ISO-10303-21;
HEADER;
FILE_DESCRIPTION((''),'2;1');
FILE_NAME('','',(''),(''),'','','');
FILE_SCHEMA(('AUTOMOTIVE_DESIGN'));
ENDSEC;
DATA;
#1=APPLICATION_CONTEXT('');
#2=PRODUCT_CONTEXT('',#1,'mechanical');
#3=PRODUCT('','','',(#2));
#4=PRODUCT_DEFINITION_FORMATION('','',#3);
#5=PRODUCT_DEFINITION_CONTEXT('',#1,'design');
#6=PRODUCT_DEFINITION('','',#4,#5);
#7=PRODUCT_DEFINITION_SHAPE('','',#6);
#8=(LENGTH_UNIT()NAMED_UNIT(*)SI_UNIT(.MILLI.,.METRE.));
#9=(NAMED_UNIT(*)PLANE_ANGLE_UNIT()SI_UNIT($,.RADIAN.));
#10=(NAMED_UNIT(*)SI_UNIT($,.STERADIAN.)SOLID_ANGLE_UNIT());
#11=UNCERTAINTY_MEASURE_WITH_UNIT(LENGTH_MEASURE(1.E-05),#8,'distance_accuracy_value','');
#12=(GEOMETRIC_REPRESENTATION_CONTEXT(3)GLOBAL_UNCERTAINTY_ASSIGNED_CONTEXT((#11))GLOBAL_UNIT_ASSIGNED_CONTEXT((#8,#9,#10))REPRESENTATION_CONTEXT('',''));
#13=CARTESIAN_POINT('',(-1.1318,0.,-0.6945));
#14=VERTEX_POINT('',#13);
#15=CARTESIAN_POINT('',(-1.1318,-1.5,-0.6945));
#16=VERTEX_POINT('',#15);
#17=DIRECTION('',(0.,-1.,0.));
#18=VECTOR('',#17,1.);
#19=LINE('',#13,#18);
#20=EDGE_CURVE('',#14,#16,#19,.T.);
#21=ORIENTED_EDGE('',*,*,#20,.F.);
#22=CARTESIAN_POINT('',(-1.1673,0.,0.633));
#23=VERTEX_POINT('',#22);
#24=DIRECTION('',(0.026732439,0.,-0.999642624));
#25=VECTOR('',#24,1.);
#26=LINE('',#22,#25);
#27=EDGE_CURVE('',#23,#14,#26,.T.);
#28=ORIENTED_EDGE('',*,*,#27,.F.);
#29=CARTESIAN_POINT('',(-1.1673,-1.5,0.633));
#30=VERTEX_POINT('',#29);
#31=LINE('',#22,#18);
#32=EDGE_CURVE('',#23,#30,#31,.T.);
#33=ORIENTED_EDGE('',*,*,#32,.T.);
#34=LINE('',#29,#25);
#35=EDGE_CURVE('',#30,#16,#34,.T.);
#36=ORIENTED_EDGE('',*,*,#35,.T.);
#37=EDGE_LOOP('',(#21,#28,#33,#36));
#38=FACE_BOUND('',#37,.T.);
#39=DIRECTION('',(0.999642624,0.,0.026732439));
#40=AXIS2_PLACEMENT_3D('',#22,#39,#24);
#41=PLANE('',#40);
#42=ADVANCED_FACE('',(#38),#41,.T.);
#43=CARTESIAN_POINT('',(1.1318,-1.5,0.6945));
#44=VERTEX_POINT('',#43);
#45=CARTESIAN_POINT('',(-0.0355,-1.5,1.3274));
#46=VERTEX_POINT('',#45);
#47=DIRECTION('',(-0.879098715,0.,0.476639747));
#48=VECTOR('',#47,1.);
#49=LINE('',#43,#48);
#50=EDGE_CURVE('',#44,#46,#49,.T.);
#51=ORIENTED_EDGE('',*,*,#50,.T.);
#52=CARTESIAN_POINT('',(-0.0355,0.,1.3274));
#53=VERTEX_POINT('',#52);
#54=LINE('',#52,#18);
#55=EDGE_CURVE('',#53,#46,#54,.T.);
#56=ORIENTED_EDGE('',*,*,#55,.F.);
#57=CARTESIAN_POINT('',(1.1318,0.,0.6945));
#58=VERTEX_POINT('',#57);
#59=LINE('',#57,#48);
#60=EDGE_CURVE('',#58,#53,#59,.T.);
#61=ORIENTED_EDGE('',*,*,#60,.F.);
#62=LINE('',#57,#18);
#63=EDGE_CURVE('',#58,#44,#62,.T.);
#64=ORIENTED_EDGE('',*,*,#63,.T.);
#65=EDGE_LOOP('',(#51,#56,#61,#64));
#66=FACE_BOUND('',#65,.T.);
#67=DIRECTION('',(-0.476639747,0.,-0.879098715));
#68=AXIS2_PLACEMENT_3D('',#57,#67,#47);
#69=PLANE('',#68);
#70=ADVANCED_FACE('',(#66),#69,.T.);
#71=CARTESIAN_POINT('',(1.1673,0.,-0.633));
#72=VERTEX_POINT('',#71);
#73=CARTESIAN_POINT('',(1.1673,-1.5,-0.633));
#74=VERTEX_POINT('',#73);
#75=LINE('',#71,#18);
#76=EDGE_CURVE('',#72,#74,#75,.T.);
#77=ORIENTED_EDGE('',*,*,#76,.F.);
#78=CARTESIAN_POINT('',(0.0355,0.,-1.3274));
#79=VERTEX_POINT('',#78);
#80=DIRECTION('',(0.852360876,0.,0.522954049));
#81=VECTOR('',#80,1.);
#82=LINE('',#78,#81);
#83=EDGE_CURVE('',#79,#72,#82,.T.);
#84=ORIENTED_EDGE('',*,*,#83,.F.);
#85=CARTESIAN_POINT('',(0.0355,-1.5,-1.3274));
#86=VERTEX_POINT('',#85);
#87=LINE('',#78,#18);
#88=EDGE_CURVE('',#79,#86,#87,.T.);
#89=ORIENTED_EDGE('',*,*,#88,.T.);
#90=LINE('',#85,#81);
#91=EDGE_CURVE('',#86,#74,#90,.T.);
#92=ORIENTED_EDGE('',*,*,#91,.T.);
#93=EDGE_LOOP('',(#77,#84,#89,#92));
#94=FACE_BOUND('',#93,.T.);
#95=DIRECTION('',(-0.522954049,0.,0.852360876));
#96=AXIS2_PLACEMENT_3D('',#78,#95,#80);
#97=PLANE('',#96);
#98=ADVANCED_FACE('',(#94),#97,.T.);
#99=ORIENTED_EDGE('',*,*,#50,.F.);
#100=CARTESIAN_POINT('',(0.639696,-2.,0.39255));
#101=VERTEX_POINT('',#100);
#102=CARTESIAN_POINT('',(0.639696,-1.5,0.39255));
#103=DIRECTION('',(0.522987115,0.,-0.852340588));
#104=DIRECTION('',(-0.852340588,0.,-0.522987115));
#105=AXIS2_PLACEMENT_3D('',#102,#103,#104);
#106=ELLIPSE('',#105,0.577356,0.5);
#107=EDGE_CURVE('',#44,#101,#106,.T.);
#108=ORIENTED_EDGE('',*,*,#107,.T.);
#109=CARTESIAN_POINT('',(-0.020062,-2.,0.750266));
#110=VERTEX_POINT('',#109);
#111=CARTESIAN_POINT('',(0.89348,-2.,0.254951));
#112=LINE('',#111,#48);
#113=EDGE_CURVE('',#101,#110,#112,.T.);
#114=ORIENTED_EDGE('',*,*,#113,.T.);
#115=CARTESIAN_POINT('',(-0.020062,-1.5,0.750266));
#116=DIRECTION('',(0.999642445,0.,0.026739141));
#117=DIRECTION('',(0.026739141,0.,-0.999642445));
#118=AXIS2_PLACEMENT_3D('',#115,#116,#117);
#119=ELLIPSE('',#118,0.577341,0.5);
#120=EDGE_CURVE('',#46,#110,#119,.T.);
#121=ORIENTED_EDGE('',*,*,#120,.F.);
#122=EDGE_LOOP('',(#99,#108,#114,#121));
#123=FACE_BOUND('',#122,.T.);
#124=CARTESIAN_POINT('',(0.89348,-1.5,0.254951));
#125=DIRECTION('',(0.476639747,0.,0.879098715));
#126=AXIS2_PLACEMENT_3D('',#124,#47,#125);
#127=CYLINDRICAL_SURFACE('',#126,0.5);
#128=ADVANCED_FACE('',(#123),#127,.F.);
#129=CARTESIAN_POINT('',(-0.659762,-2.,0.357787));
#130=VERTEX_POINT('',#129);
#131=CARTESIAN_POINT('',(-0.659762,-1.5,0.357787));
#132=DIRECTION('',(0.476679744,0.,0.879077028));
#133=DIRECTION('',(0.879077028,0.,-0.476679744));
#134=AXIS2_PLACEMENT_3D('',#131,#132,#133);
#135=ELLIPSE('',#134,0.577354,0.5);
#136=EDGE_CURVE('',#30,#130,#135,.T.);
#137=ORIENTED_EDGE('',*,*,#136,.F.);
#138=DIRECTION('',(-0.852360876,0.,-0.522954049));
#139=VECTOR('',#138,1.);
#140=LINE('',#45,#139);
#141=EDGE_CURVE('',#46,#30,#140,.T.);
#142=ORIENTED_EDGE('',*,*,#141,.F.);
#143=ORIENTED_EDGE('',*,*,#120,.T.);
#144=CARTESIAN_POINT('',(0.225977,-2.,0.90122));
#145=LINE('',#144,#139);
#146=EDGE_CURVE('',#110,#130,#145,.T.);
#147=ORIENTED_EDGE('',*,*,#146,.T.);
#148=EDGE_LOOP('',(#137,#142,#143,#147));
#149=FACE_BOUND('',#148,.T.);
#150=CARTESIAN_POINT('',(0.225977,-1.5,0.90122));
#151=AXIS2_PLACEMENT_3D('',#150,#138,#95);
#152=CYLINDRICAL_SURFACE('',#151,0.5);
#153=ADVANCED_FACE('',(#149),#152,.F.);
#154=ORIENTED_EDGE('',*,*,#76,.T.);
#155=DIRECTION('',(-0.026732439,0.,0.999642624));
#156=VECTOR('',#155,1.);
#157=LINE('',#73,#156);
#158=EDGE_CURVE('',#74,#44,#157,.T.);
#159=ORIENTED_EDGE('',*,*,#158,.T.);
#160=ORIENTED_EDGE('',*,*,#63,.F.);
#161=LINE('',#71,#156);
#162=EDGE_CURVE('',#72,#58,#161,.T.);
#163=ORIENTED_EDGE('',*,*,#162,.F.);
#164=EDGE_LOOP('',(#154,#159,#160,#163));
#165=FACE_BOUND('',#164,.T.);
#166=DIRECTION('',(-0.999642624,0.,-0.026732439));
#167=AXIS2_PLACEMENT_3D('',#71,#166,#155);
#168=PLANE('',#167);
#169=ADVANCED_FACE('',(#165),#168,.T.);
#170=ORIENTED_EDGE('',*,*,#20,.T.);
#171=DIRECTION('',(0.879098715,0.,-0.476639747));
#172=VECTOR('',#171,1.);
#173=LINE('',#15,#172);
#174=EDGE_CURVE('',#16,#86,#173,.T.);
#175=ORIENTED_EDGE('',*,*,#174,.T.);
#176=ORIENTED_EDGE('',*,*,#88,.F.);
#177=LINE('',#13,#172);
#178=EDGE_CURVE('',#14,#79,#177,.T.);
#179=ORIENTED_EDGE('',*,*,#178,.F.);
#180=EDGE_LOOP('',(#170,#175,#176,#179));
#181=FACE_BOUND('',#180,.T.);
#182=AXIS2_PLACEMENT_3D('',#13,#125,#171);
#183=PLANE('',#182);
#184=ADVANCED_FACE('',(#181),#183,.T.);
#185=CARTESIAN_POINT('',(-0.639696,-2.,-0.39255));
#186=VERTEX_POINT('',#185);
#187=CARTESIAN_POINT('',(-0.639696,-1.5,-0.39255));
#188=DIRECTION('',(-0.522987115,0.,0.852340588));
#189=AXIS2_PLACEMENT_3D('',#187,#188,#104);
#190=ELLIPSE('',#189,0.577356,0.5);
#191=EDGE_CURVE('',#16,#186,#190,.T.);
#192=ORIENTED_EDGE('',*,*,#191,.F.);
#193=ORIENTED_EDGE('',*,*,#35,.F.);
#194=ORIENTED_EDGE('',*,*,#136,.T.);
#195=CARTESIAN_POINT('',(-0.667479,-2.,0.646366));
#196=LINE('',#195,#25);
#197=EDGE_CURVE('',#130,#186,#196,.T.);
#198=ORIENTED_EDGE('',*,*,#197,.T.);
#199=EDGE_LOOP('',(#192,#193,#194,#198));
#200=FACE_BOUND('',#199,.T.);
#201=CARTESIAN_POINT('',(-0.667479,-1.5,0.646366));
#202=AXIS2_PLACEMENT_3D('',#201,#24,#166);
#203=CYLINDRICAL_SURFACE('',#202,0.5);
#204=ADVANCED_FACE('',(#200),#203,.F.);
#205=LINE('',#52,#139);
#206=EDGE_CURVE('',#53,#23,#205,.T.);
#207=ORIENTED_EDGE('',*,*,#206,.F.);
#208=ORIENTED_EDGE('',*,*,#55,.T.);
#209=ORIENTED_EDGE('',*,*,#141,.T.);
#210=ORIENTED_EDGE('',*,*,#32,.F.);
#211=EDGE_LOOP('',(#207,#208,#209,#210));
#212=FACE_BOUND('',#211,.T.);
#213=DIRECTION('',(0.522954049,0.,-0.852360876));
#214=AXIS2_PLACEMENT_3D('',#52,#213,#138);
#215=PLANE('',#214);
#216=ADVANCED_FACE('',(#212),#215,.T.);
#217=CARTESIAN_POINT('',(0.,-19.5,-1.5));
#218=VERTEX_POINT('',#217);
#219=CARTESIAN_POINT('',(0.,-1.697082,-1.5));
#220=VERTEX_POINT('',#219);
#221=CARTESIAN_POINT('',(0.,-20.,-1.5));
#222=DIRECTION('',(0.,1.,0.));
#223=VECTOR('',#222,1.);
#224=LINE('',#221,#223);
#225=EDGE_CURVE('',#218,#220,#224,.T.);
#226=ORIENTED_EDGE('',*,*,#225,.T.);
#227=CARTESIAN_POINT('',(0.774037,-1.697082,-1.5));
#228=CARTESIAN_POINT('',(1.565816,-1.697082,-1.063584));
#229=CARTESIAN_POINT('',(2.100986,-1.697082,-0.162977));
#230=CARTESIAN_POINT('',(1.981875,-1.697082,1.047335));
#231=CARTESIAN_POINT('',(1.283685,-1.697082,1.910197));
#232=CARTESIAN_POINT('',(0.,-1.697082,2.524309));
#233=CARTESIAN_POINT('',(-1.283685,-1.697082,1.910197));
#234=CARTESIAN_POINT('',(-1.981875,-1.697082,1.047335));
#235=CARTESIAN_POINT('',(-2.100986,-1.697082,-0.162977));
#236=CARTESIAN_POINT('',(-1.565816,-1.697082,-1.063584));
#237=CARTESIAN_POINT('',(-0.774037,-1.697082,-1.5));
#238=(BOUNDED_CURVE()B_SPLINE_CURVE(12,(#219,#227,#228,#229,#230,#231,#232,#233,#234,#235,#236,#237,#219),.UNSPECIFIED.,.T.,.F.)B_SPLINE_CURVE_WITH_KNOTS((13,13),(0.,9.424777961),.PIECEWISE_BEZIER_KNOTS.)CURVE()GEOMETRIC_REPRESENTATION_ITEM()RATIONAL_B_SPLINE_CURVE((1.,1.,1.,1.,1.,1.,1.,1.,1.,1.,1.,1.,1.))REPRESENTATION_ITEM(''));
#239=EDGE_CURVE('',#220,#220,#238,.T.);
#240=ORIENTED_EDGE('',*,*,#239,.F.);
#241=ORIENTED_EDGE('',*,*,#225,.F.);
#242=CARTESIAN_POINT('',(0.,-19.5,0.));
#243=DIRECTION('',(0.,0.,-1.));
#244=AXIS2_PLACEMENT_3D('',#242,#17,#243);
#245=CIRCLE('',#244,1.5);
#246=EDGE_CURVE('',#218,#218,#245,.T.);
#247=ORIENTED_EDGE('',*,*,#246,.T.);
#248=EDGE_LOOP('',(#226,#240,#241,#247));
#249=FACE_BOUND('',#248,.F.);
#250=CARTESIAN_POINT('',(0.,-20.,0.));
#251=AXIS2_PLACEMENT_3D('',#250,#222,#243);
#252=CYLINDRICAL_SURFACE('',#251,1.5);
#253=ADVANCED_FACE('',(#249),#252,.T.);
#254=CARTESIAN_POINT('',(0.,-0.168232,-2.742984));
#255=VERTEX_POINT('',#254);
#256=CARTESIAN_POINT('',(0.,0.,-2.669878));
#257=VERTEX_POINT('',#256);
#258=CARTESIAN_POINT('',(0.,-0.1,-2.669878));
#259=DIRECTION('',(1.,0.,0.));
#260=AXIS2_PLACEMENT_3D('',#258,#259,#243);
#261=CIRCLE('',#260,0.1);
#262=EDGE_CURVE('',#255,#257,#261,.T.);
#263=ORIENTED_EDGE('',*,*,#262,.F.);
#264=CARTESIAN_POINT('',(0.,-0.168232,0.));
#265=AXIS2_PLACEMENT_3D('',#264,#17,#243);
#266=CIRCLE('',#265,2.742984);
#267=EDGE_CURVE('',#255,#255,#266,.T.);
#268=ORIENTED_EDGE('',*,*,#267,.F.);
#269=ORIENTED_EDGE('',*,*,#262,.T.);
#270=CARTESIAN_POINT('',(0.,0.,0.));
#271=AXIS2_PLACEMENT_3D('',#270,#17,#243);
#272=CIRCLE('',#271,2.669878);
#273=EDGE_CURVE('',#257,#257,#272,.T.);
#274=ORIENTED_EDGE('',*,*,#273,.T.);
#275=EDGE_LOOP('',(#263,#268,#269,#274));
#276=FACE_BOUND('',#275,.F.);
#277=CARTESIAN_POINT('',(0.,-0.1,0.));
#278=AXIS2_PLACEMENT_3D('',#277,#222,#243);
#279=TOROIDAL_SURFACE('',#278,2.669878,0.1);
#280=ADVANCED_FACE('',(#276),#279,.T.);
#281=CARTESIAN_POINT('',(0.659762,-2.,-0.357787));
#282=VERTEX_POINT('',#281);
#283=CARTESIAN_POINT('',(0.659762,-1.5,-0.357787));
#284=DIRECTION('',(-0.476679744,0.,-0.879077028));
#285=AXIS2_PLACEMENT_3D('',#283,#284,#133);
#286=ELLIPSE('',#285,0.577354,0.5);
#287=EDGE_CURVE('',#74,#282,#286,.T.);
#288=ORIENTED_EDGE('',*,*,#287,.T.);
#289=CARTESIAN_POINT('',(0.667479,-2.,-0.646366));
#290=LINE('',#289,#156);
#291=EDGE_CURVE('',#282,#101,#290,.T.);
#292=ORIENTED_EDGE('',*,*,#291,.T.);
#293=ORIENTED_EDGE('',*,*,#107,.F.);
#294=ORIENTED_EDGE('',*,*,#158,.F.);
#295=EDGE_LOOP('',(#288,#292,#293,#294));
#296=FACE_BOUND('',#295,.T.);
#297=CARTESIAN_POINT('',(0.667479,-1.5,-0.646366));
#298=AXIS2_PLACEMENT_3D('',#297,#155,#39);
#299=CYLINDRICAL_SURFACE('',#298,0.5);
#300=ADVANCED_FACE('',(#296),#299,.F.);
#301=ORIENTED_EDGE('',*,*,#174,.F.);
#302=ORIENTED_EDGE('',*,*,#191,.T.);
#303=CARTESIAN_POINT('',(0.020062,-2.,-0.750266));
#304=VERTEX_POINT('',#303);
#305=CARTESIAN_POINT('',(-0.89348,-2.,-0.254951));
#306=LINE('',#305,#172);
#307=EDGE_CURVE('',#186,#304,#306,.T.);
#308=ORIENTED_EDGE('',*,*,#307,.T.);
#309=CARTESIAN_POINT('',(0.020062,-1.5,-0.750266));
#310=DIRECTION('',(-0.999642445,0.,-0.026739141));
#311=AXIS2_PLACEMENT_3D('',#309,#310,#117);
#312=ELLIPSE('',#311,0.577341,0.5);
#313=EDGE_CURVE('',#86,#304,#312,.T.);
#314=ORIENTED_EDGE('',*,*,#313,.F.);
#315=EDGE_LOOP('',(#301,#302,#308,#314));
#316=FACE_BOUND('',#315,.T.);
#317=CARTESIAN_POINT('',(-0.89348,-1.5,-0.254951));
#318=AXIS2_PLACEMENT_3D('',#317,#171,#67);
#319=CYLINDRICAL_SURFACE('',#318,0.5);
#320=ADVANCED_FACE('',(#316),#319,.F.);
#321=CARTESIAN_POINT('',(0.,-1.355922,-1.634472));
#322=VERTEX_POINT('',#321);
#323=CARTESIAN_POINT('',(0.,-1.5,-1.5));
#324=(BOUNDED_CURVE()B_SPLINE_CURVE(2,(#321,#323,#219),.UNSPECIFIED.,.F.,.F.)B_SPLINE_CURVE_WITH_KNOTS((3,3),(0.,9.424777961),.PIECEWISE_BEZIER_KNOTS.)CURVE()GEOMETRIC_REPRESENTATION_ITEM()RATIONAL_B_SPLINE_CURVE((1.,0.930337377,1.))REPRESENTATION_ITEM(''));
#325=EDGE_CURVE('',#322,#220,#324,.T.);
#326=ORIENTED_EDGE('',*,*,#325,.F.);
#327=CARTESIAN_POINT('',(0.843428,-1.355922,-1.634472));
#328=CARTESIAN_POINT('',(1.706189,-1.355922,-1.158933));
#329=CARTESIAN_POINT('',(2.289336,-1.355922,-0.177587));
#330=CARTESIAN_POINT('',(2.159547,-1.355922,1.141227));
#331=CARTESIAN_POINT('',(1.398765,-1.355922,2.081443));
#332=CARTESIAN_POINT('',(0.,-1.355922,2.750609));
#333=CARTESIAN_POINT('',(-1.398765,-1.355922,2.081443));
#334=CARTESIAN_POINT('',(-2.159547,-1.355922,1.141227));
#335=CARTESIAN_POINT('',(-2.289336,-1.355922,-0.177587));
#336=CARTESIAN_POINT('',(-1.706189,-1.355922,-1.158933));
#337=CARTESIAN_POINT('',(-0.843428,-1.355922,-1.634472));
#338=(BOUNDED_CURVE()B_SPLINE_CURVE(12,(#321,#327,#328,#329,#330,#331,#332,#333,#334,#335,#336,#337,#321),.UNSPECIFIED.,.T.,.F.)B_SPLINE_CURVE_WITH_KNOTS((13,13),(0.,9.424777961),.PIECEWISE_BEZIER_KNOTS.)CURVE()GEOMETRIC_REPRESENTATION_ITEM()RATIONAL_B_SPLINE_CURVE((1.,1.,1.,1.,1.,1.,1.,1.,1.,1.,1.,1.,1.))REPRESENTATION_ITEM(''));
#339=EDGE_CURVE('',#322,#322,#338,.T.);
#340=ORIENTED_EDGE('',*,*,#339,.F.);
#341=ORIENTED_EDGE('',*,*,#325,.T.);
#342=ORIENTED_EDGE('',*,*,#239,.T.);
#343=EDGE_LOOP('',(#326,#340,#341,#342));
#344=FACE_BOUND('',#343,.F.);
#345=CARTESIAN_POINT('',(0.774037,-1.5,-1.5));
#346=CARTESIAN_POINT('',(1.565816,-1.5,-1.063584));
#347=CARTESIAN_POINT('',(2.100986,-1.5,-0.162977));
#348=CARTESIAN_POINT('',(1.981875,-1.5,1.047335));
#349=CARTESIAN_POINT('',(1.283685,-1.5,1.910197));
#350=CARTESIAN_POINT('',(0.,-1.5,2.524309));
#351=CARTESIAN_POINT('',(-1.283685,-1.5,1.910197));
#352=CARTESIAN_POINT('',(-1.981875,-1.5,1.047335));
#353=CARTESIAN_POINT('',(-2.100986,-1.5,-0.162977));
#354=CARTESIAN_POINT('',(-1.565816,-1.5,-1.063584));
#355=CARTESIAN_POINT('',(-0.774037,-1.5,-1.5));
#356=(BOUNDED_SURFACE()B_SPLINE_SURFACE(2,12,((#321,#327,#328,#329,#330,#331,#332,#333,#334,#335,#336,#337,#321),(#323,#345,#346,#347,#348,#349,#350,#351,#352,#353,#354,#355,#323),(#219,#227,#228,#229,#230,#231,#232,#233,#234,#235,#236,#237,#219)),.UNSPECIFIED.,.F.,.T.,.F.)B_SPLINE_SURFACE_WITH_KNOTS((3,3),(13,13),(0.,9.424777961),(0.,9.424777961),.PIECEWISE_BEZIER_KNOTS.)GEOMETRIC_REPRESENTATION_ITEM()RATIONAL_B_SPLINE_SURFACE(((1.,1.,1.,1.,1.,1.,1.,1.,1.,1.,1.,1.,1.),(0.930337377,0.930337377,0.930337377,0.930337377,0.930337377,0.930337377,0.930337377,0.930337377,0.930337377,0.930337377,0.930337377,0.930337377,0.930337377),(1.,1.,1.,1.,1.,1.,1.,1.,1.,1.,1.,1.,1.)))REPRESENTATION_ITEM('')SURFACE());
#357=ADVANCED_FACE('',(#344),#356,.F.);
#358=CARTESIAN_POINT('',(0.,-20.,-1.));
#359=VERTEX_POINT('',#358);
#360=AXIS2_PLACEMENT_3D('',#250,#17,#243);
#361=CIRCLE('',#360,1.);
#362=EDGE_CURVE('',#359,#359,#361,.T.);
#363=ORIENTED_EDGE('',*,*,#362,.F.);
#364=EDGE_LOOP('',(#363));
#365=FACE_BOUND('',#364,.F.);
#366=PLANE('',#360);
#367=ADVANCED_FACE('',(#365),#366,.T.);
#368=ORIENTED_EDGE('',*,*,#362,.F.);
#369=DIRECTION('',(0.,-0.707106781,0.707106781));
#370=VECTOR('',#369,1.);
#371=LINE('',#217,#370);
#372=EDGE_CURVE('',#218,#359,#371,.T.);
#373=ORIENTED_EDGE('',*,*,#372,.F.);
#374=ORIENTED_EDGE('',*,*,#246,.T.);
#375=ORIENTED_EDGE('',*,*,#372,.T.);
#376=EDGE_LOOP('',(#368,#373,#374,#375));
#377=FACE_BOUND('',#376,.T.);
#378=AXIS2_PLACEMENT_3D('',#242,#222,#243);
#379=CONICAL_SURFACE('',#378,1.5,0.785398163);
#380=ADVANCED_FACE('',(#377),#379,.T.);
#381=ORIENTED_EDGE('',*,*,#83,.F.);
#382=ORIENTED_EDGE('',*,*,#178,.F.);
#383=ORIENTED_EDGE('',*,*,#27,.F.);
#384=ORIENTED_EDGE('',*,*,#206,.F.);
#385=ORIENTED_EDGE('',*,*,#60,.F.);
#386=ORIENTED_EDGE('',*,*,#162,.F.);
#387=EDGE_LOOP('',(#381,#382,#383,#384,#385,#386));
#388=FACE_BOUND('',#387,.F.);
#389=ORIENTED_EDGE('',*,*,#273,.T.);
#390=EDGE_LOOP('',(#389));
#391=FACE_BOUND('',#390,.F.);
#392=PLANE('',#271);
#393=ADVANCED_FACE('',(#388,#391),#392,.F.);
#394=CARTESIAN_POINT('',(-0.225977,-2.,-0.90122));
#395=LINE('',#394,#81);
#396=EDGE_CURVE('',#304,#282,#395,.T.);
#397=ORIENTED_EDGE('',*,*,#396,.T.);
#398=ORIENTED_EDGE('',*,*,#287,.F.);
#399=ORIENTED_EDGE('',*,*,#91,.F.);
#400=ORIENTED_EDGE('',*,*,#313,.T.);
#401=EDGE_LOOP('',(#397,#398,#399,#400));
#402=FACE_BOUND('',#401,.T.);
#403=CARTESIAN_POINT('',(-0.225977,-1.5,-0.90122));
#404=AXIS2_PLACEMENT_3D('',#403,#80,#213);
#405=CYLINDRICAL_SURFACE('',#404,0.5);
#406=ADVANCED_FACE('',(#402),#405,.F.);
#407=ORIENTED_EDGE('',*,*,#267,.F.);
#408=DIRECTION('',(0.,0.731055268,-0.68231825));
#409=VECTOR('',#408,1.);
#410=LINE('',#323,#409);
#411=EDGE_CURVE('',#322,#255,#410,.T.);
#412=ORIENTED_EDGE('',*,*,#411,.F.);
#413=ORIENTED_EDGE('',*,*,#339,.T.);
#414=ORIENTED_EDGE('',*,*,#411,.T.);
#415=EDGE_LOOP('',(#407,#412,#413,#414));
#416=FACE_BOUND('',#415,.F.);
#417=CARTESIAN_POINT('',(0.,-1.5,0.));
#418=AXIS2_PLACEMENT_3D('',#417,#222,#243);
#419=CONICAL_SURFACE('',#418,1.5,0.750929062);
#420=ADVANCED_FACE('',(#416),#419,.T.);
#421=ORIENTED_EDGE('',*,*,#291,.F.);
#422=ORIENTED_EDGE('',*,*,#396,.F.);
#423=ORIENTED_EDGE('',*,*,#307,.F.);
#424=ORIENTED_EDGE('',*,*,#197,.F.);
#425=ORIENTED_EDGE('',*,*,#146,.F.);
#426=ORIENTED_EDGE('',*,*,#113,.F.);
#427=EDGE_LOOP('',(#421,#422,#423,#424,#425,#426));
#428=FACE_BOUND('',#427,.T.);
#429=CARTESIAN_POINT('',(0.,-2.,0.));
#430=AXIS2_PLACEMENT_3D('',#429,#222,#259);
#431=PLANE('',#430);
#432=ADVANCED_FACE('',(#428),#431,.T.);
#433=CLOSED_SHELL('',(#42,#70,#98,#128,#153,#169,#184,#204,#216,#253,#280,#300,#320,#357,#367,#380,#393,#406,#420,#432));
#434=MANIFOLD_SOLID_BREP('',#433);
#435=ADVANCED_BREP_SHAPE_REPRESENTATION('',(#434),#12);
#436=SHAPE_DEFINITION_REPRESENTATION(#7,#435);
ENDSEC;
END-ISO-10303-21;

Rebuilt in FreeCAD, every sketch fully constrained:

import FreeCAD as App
import Part
import Sketcher
from FreeCAD import Vector
Q = App.Units.Quantity


def edges_at(feature, points):
    """Names of the edges that pass closest to the given points."""
    edges = feature.Shape.Edges
    near = lambda p: min(range(len(edges)), key=lambda i: edges[i].distToShape(Part.Vertex(*p))[0])
    return sorted({f"Edge{near(p) + 1}" for p in points})


def add_polygon(sketch, points):
    """Adds a closed chain of lines whose ends are joined by coincident constraints."""
    first, n = sketch.GeometryCount, len(points)
    for a, b in zip(points, points[1:] + points[:1]):
        sketch.addGeometry(Part.LineSegment(App.Vector(*a, 0), App.Vector(*b, 0)), False)
    for i in range(n):
        sketch.addConstraint(Sketcher.Constraint("Coincident", first + i, 2, first + (i + 1) % n, 1))

doc = App.newDocument("Part")
body = doc.addObject("PartDesign::Body", "Body")

sketch1 = body.newObject("Sketcher::SketchObject", "Sketch")
sketch1.AttachmentSupport = (doc.getObject("YZ_Plane"), [""])
sketch1.MapMode = "FlatFace"
add_polygon(sketch1, [(-1.5, -1.5), (0, -2.9), (0, 0), (-20, 0), (-20, -1.5)])
sketch1.addConstraint([
    Sketcher.Constraint("Vertical", 1),
    Sketcher.Constraint("Horizontal", 2),
    Sketcher.Constraint("Vertical", 3),
    Sketcher.Constraint("Horizontal", 4),
    Sketcher.Constraint("Coincident", 1, 2, -1, 1),
    Sketcher.Constraint("DistanceX", 2, 2, 2, 1, 20.0),
    Sketcher.Constraint("DistanceY", 3, 2, 3, 1, 1.5),
    Sketcher.Constraint("DistanceX", 4, 2, -1, 1, 1.5),
    Sketcher.Constraint("DistanceY", 1, 1, 1, 2, 2.9),
])
revolution = body.newObject("PartDesign::Revolution", "Revolution")
revolution.Profile = sketch1
revolution.ReferenceAxis = (sketch1, ["H_Axis"])
revolution.Angle = 360

sketch2 = body.newObject("Sketcher::SketchObject", "Sketch001")
sketch2.AttachmentSupport = (doc.getObject("XZ_Plane"), [""])
sketch2.MapMode = "FlatFace"
add_polygon(sketch2, [(-1.1, -0.7), (-1.2, 0.6), (0, 1.3), (1.1, 0.7), (1.2, -0.6), (0, -1.3)])
sketch2.addConstraint([
    Sketcher.Constraint("Symmetric", 0, 2, 3, 2, -1, 1),
    Sketcher.Constraint("Symmetric", 1, 2, 4, 2, -1, 1),
    Sketcher.Constraint("Symmetric", 2, 2, 5, 2, -1, 1),
    Sketcher.Constraint("Equal", 0, 1),
    Sketcher.Constraint("Equal", 1, 2),
    Sketcher.Constraint("Angle", 1, Q("31.5306 deg")),
    Sketcher.Constraint("Distance", 0, 1.328),
    Sketcher.Constraint("DistanceY", -1, 1, 0, 2, 0.633),
    Sketcher.Constraint("DistanceY", 2, 2, 1, 2, 0.633),
])
pocket1 = body.newObject("PartDesign::Pocket", "Pocket")
pocket1.Profile = sketch2
pocket1.Length = 2
pocket1.Reversed = True
doc.recompute()

fillet = body.newObject("PartDesign::Fillet", "Fillet")
fillet.Base = (pocket1, edges_at(pocket1, [
    (-1.15, -2, -0.031),
    (-0.601, -2, 0.98),
    (-0.548, -2, -1.011),
    (0.601, -2, -0.98),
    (0.548, -2, 1.011),
    (1.15, -2, 0.031),
]))
fillet.Radius = 0.5
doc.recompute()

fillet2 = body.newObject("PartDesign::Fillet", "Fillet001")
fillet2.Base = (fillet, edges_at(fillet, [(0, -1.5, 1.5)]))
fillet2.Radius = 0.5
doc.recompute()

fillet3 = body.newObject("PartDesign::Fillet", "Fillet002")
fillet3.Base = (fillet2, edges_at(fillet2, [(0, 0, 2.9)]))
fillet3.Radius = 0.1
doc.recompute()

chamfer = body.newObject("PartDesign::Chamfer", "Chamfer")
chamfer.Base = (fillet3, edges_at(fillet3, [(0, -20, 1.5)]))
chamfer.Size = 0.5

doc.recompute()
